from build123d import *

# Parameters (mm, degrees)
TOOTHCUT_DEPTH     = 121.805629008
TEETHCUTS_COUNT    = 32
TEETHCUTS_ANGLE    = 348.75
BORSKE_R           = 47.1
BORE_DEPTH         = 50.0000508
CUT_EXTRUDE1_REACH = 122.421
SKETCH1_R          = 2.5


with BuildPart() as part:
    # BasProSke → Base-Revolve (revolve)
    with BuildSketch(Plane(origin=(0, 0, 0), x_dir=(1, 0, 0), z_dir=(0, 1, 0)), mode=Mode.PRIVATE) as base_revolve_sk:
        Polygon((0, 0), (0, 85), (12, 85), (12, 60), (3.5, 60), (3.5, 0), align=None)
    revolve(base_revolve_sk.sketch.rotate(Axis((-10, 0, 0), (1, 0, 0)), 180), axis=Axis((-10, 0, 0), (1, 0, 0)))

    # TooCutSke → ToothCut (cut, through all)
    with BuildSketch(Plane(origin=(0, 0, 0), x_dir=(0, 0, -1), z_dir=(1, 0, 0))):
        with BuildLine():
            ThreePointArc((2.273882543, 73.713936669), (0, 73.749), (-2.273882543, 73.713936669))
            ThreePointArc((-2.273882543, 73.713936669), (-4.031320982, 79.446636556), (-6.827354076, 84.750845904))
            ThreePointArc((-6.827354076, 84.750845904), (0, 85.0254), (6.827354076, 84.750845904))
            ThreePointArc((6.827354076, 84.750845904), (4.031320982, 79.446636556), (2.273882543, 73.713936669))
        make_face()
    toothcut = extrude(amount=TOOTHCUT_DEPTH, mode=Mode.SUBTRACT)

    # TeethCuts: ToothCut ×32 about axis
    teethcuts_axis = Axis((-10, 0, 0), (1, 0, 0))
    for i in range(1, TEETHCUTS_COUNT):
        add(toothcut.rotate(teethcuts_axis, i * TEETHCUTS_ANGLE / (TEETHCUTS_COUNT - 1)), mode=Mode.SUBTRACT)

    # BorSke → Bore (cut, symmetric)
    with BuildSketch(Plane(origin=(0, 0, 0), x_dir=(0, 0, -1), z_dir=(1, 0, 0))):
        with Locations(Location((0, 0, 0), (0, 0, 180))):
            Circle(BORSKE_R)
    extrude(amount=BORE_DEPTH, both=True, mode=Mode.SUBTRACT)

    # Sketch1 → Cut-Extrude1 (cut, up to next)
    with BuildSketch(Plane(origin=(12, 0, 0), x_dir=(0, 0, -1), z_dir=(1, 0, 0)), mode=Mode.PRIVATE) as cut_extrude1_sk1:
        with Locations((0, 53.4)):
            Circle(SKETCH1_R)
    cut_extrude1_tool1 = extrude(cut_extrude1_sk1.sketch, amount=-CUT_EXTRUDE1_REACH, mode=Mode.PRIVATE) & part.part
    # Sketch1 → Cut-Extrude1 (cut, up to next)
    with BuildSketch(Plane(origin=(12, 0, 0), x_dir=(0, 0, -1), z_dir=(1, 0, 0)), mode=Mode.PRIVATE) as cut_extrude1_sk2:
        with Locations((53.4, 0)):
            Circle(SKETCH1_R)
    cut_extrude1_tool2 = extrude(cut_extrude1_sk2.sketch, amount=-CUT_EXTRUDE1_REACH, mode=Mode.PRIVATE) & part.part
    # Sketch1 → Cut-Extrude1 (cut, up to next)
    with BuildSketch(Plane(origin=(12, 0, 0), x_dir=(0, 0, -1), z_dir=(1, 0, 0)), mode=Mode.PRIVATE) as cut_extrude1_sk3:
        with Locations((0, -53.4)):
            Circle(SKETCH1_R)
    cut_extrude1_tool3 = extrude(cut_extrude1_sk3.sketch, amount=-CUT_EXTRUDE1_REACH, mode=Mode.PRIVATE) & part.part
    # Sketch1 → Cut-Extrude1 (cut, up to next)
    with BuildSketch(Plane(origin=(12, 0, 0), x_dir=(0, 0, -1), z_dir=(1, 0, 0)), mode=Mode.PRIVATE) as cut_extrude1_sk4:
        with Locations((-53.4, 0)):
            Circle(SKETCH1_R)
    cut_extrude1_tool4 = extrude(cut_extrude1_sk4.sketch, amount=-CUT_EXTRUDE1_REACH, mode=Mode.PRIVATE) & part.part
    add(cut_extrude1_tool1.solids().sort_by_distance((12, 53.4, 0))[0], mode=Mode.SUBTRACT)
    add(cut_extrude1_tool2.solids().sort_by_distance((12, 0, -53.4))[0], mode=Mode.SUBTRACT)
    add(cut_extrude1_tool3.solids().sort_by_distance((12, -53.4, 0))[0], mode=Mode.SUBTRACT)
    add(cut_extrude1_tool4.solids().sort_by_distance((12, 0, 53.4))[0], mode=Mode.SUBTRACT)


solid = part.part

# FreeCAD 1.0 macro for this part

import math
import FreeCAD as App
import Part
import Sketcher
from FreeCAD import Vector
Q = App.Units.Quantity


def add_polygon(sketch, points):
    """Adds a closed chain of lines whose ends are joined by coincident constraints."""
    first, n = sketch.GeometryCount, len(points)
    for a, b in zip(points, points[1:] + points[:1]):
        sketch.addGeometry(Part.LineSegment(App.Vector(*a, 0), App.Vector(*b, 0)), False)
    for i in range(n):
        sketch.addConstraint(Sketcher.Constraint("Coincident", first + i, 2, first + (i + 1) % n, 1))

doc = App.newDocument("Part")
params = doc.addObject("Spreadsheet::Sheet", "Params")
for row, (alias, value) in enumerate([
    ("sketch1_width", "12 mm"),
    ("sketch1_height", "85 mm"),
    ("sketch1_height2", "60 mm"),
    ("sketch1_width2", "3.5 mm"),
    ("revolution_angle", "360 deg"),
    ("sketch2_radius", "32 mm"),
    ("sketch3_diameter", "94.2 mm"),
    ("pocket2_length", "100.000102 mm"),
    ("sketch4_diameter", "5 mm"),
    ("pocket3_length", "12 mm"),
    ("sketch5_diameter", "5 mm"),
    ("pocket4_length", "12 mm"),
    ("sketch6_diameter", "5 mm"),
    ("pocket5_length", "12 mm"),
    ("sketch7_diameter", "5 mm"),
    ("pocket6_length", "12 mm"),
], start=1):
    params.set(f"A{row}", alias)
    params.set(f"B{row}", "=" + value)
    params.setAlias(f"B{row}", alias)

body = doc.addObject("PartDesign::Body", "Body")

# Sketch on XZ plane
sketch1 = doc.addObject("Sketcher::SketchObject", "Sketch")
body.addObject(sketch1)
sketch1.AttachmentSupport = (doc.XZ_Plane, [""])
sketch1.MapMode = "FlatFace"
add_polygon(sketch1, [(0, -85), (0, 0), (3.5, 0), (3.5, -60), (12, -60), (12, -85)])  # lines 0-5
sketch1.addConstraint([
    Sketcher.Constraint("Vertical", 0),
    Sketcher.Constraint("Horizontal", 1),
    Sketcher.Constraint("Vertical", 2),
    Sketcher.Constraint("Horizontal", 3),
    Sketcher.Constraint("Vertical", 4),
    Sketcher.Constraint("Horizontal", 5),
    Sketcher.Constraint("Coincident", 0, 2, -1, 1),
    Sketcher.Constraint("DistanceX", 5, 2, 5, 1, Q("12 mm")),
    Sketcher.Constraint("DistanceY", 0, 1, 0, 2, Q("85 mm")),
    Sketcher.Constraint("DistanceY", 2, 2, 2, 1, Q("60 mm")),
    Sketcher.Constraint("DistanceX", 1, 1, 1, 2, Q("3.5 mm")),
])
sketch1.setExpression("Constraints[13]", "Params.sketch1_width")
sketch1.setExpression("Constraints[14]", "Params.sketch1_height")
sketch1.setExpression("Constraints[15]", "Params.sketch1_height2")
sketch1.setExpression("Constraints[16]", "Params.sketch1_width2")
revolution = doc.addObject("PartDesign::Revolution", "Revolution")
body.addObject(revolution)
revolution.Profile = sketch1
revolution.ReferenceAxis = (sketch1, ["H_Axis"])
revolution.setExpression("Angle", "Params.revolution_angle")

# Sketch on YZ plane
sketch2 = doc.addObject("Sketcher::SketchObject", "Sketch001")
body.addObject(sketch2)
sketch2.AttachmentSupport = (doc.YZ_Plane, [""])
sketch2.MapMode = "FlatFace"
sketch2.addGeometry([
    Part.ArcOfCircle(Part.Circle(Vector(0, 0, 0), Vector(0, 0, 1), 73.7), math.radians(-1.77), math.radians(1.77)),
    Part.ArcOfCircle(Part.Circle(Vector(67.2, -33.6, 0), Vector(0, 0, 1), 32), math.radians(57), math.radians(78)),
    Part.ArcOfCircle(Part.Circle(Vector(0, 0, 0), Vector(0, 0, 1), 85), math.radians(-4.61), math.radians(4.61)),
    Part.ArcOfCircle(Part.Circle(Vector(67.2, 33.6, 0), Vector(0, 0, 1), 32), math.radians(-78), math.radians(-57)),
], False)
sketch2.addConstraint([
    Sketcher.Constraint("Coincident", 0, 1, 1, 2),
    Sketcher.Constraint("Coincident", 1, 1, 2, 1),
    Sketcher.Constraint("Coincident", 2, 2, 3, 2),
    Sketcher.Constraint("Coincident", 3, 1, 0, 2),
    Sketcher.Constraint("Coincident", 0, 3, -1, 1),
    Sketcher.Constraint("Coincident", 2, 3, -1, 1),
    Sketcher.Constraint("Equal", 1, 3),
    Sketcher.Constraint("Symmetric", 1, 3, 3, 3, -1),
    Sketcher.Constraint("Radius", 1, Q("32 mm")),
    Sketcher.Constraint("Radius", 0, Q("73.749001 mm")),
    Sketcher.Constraint("Radius", 2, Q("85.0254 mm")),
    Sketcher.Constraint("DistanceY", 1, 3, 3, 3, Q("67.225302 mm")),
    Sketcher.Constraint("DistanceX", 1, 3, 0, 1, Q("6.471599 mm")),
])
sketch2.setExpression("Constraints[8]", "Params.sketch2_radius")
pocket1 = doc.addObject("PartDesign::Pocket", "Pocket")
body.addObject(pocket1)
pocket1.Profile = sketch2
pocket1.Type = "ThroughAll"
pocket1.Reversed = True
doc.recompute()

polarpattern = doc.addObject("PartDesign::PolarPattern", "PolarPattern")
body.addObject(polarpattern)
polarpattern.Originals = [pocket1]
polarpattern.Axis = (doc.X_Axis, [""])
polarpattern.Angle = 360
polarpattern.Occurrences = 32
body.Tip = polarpattern

# Sketch on YZ plane
sketch3 = doc.addObject("Sketcher::SketchObject", "Sketch002")
body.addObject(sketch3)
sketch3.AttachmentSupport = (doc.YZ_Plane, [""])
sketch3.MapMode = "FlatFace"
sketch3.addGeometry(Part.Circle(Vector(0, 0, 0), Vector(0, 0, 1), 47), False)
sketch3.addConstraint([
    Sketcher.Constraint("Coincident", 0, 3, -1, 1),
    Sketcher.Constraint("Diameter", 0, Q("94.2 mm")),
])
sketch3.setExpression("Constraints[1]", "Params.sketch3_diameter")
pocket2 = doc.addObject("PartDesign::Pocket", "Pocket001")
body.addObject(pocket2)
pocket2.Profile = sketch3
pocket2.setExpression("Length", "Params.pocket2_length")
pocket2.Midplane = True

# Sketch on YZ plane
sketch4 = doc.addObject("Sketcher::SketchObject", "Sketch003")
body.addObject(sketch4)
sketch4.AttachmentSupport = (doc.YZ_Plane, [""])
sketch4.MapMode = "FlatFace"
sketch4.AttachmentOffset = App.Placement(Vector(0, 0, 12), App.Rotation())
sketch4.addGeometry(Part.Circle(Vector(53.4, 0, 0), Vector(0, 0, 1), 2.5), False)
sketch4.addConstraint([
    Sketcher.Constraint("PointOnObject", 0, 3, -1),
    Sketcher.Constraint("Diameter", 0, Q("5 mm")),
    Sketcher.Constraint("DistanceX", -1, 1, 0, 3, Q("53.4 mm")),
])
sketch4.setExpression("Constraints[1]", "Params.sketch4_diameter")
pocket3 = doc.addObject("PartDesign::Pocket", "Pocket002")
body.addObject(pocket3)
pocket3.Profile = sketch4
pocket3.setExpression("Length", "Params.pocket3_length")

# Sketch on YZ plane
sketch5 = doc.addObject("Sketcher::SketchObject", "Sketch004")
body.addObject(sketch5)
sketch5.AttachmentSupport = (doc.YZ_Plane, [""])
sketch5.MapMode = "FlatFace"
sketch5.AttachmentOffset = App.Placement(Vector(0, 0, 12), App.Rotation())
sketch5.addGeometry(Part.Circle(Vector(0, -53.4, 0), Vector(0, 0, 1), 2.5), False)
sketch5.addConstraint([
    Sketcher.Constraint("PointOnObject", 0, 3, -2),
    Sketcher.Constraint("Diameter", 0, Q("5 mm")),
    Sketcher.Constraint("DistanceY", 0, 3, -1, 1, Q("53.4 mm")),
])
sketch5.setExpression("Constraints[1]", "Params.sketch5_diameter")
pocket4 = doc.addObject("PartDesign::Pocket", "Pocket003")
body.addObject(pocket4)
pocket4.Profile = sketch5
pocket4.setExpression("Length", "Params.pocket4_length")

# Sketch on YZ plane
sketch6 = doc.addObject("Sketcher::SketchObject", "Sketch005")
body.addObject(sketch6)
sketch6.AttachmentSupport = (doc.YZ_Plane, [""])
sketch6.MapMode = "FlatFace"
sketch6.AttachmentOffset = App.Placement(Vector(0, 0, 12), App.Rotation())
sketch6.addGeometry(Part.Circle(Vector(-53.4, 0, 0), Vector(0, 0, 1), 2.5), False)
sketch6.addConstraint([
    Sketcher.Constraint("PointOnObject", 0, 3, -1),
    Sketcher.Constraint("Diameter", 0, Q("5 mm")),
    Sketcher.Constraint("DistanceX", 0, 3, -1, 1, Q("53.4 mm")),
])
sketch6.setExpression("Constraints[1]", "Params.sketch6_diameter")
pocket5 = doc.addObject("PartDesign::Pocket", "Pocket004")
body.addObject(pocket5)
pocket5.Profile = sketch6
pocket5.setExpression("Length", "Params.pocket5_length")

# Sketch on YZ plane
sketch7 = doc.addObject("Sketcher::SketchObject", "Sketch006")
body.addObject(sketch7)
sketch7.AttachmentSupport = (doc.YZ_Plane, [""])
sketch7.MapMode = "FlatFace"
sketch7.AttachmentOffset = App.Placement(Vector(0, 0, 12), App.Rotation())
sketch7.addGeometry(Part.Circle(Vector(0, 53.4, 0), Vector(0, 0, 1), 2.5), False)
sketch7.addConstraint([
    Sketcher.Constraint("PointOnObject", 0, 3, -2),
    Sketcher.Constraint("Diameter", 0, Q("5 mm")),
    Sketcher.Constraint("DistanceY", -1, 1, 0, 3, Q("53.4 mm")),
])
sketch7.setExpression("Constraints[1]", "Params.sketch7_diameter")
pocket6 = doc.addObject("PartDesign::Pocket", "Pocket005")
body.addObject(pocket6)
pocket6.Profile = sketch7
pocket6.setExpression("Length", "Params.pocket6_length")

doc.recompute()
